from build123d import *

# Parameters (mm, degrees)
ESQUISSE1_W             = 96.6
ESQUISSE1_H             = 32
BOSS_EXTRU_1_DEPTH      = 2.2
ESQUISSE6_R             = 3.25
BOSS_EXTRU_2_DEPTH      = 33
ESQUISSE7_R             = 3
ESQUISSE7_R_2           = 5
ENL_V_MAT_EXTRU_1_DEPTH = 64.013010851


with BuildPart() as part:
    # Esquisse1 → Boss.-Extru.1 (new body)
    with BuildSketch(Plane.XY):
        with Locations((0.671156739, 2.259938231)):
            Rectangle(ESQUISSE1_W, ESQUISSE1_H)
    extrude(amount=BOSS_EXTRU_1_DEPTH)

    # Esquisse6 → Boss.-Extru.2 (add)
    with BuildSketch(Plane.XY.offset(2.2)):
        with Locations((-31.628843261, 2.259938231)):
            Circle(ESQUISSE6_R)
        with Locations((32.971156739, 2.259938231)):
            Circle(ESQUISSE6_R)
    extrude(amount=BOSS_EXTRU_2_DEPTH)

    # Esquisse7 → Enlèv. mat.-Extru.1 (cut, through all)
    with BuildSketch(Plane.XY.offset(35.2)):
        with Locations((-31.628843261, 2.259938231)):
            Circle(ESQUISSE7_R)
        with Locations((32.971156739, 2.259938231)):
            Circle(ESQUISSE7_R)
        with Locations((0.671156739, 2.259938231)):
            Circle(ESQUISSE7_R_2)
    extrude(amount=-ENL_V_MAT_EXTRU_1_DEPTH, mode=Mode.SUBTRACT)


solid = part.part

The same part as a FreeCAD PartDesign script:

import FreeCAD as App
import Part
import Sketcher
from FreeCAD import Vector
Q = App.Units.Quantity

doc = App.newDocument("Part")
params = doc.addObject("Spreadsheet::Sheet", "Params")
for row, (alias, value) in enumerate([
    ("sketch1_height", "32 mm"),
    ("sketch1_width", "96.6 mm"),
    ("pad1_length", "2.2 mm"),
    ("sketch2_diameter", "6.5 mm"),
    ("pad2_length", "33 mm"),
    ("sketch3_diameter", "6 mm"),
    ("sketch3_diameter2", "10 mm"),
], start=1):
    params.set(f"A{row}", alias)
    params.set(f"B{row}", "=" + value)
    params.setAlias(f"B{row}", alias)

body = doc.addObject("PartDesign::Body", "Body")

sketch1 = doc.addObject("Sketcher::SketchObject", "Sketch")
body.addObject(sketch1)
sketch1.AttachmentSupport = (doc.XY_Plane, [""])
sketch1.MapMode = "FlatFace"
sketch1.addGeometry([
    Part.LineSegment(Vector(-48, 18, 0), Vector(-48, -14, 0)),
    Part.LineSegment(Vector(-48, -14, 0), Vector(49, -14, 0)),
    Part.LineSegment(Vector(49, -14, 0), Vector(49, 18, 0)),
    Part.LineSegment(Vector(49, 18, 0), Vector(-48, 18, 0)),
], False)
sketch1.addConstraint([
    Sketcher.Constraint("Coincident", 0, 2, 1, 1),
    Sketcher.Constraint("Coincident", 1, 2, 2, 1),
    Sketcher.Constraint("Coincident", 2, 2, 3, 1),
    Sketcher.Constraint("Coincident", 3, 2, 0, 1),
    Sketcher.Constraint("Vertical", 0),
    Sketcher.Constraint("Horizontal", 1),
    Sketcher.Constraint("Vertical", 2),
    Sketcher.Constraint("Horizontal", 3),
    Sketcher.Constraint("DistanceY", 0, 2, 0, 1, Q("32 mm")),
    Sketcher.Constraint("DistanceX", 1, 1, 1, 2, Q("96.6 mm")),
    Sketcher.Constraint("DistanceY", 0, 2, -1, 1, Q("13.740062 mm")),
    Sketcher.Constraint("DistanceX", 0, 2, -1, 1, Q("47.628843 mm")),
])
sketch1.setExpression("Constraints[8]", "Params.sketch1_height")
sketch1.setExpression("Constraints[9]", "Params.sketch1_width")
pad1 = doc.addObject("PartDesign::Pad", "Pad")
body.addObject(pad1)
pad1.Profile = sketch1
pad1.setExpression("Length", "Params.pad1_length")

sketch2 = doc.addObject("Sketcher::SketchObject", "Sketch001")
body.addObject(sketch2)
sketch2.AttachmentSupport = (doc.XY_Plane, [""])
sketch2.MapMode = "FlatFace"
sketch2.AttachmentOffset = App.Placement(Vector(0, 0, 2.2), App.Rotation())
sketch2.addGeometry([
    Part.Circle(Vector(-31.6, 2.3, 0), Vector(0, 0, 1), 3.2),
    Part.Circle(Vector(33, 2.3, 0), Vector(0, 0, 1), 3.2),
], False)
sketch2.addConstraint([
    Sketcher.Constraint("Equal", 0, 1),
    Sketcher.Constraint("Horizontal", 0, 3, 1, 3),
    Sketcher.Constraint("Diameter", 0, Q("6.5 mm")),
    Sketcher.Constraint("DistanceX", 0, 3, 1, 3, Q("64.6 mm")),
    Sketcher.Constraint("DistanceY", -1, 1, 0, 3, Q("2.259938 mm")),
    Sketcher.Constraint("DistanceX", 0, 3, -1, 1, Q("31.628843 mm")),
])
sketch2.setExpression("Constraints[2]", "Params.sketch2_diameter")
pad2 = doc.addObject("PartDesign::Pad", "Pad001")
body.addObject(pad2)
pad2.Profile = sketch2
pad2.setExpression("Length", "Params.pad2_length")

sketch3 = doc.addObject("Sketcher::SketchObject", "Sketch002")
body.addObject(sketch3)
sketch3.AttachmentSupport = (doc.XY_Plane, [""])
sketch3.MapMode = "FlatFace"
sketch3.AttachmentOffset = App.Placement(Vector(0, 0, 35.2), App.Rotation())
sketch3.addGeometry([
    Part.Circle(Vector(-31.6, 2.3, 0), Vector(0, 0, 1), 3),
    Part.Circle(Vector(33, 2.3, 0), Vector(0, 0, 1), 3),
    Part.Circle(Vector(0.7, 2.3, 0), Vector(0, 0, 1), 5),
], False)
sketch3.addConstraint([
    Sketcher.Constraint("Equal", 0, 1),
    Sketcher.Constraint("Horizontal", 0, 3, 1, 3),
    Sketcher.Constraint("Horizontal", 1, 3, 2, 3),
    Sketcher.Constraint("Diameter", 0, Q("6 mm")),
    Sketcher.Constraint("Diameter", 2, Q("10 mm")),
    Sketcher.Constraint("DistanceX", 0, 3, 1, 3, Q("64.6 mm")),
    Sketcher.Constraint("DistanceX", 0, 3, 2, 3, Q("32.3 mm")),
    Sketcher.Constraint("DistanceY", -1, 1, 0, 3, Q("2.259938 mm")),
    Sketcher.Constraint("DistanceX", 0, 3, -1, 1, Q("31.628843 mm")),
])
sketch3.setExpression("Constraints[3]", "Params.sketch3_diameter")
sketch3.setExpression("Constraints[4]", "Params.sketch3_diameter2")
pocket1 = doc.addObject("PartDesign::Pocket", "Pocket")
body.addObject(pocket1)
pocket1.Profile = sketch3
pocket1.Type = "ThroughAll"

doc.recompute()
